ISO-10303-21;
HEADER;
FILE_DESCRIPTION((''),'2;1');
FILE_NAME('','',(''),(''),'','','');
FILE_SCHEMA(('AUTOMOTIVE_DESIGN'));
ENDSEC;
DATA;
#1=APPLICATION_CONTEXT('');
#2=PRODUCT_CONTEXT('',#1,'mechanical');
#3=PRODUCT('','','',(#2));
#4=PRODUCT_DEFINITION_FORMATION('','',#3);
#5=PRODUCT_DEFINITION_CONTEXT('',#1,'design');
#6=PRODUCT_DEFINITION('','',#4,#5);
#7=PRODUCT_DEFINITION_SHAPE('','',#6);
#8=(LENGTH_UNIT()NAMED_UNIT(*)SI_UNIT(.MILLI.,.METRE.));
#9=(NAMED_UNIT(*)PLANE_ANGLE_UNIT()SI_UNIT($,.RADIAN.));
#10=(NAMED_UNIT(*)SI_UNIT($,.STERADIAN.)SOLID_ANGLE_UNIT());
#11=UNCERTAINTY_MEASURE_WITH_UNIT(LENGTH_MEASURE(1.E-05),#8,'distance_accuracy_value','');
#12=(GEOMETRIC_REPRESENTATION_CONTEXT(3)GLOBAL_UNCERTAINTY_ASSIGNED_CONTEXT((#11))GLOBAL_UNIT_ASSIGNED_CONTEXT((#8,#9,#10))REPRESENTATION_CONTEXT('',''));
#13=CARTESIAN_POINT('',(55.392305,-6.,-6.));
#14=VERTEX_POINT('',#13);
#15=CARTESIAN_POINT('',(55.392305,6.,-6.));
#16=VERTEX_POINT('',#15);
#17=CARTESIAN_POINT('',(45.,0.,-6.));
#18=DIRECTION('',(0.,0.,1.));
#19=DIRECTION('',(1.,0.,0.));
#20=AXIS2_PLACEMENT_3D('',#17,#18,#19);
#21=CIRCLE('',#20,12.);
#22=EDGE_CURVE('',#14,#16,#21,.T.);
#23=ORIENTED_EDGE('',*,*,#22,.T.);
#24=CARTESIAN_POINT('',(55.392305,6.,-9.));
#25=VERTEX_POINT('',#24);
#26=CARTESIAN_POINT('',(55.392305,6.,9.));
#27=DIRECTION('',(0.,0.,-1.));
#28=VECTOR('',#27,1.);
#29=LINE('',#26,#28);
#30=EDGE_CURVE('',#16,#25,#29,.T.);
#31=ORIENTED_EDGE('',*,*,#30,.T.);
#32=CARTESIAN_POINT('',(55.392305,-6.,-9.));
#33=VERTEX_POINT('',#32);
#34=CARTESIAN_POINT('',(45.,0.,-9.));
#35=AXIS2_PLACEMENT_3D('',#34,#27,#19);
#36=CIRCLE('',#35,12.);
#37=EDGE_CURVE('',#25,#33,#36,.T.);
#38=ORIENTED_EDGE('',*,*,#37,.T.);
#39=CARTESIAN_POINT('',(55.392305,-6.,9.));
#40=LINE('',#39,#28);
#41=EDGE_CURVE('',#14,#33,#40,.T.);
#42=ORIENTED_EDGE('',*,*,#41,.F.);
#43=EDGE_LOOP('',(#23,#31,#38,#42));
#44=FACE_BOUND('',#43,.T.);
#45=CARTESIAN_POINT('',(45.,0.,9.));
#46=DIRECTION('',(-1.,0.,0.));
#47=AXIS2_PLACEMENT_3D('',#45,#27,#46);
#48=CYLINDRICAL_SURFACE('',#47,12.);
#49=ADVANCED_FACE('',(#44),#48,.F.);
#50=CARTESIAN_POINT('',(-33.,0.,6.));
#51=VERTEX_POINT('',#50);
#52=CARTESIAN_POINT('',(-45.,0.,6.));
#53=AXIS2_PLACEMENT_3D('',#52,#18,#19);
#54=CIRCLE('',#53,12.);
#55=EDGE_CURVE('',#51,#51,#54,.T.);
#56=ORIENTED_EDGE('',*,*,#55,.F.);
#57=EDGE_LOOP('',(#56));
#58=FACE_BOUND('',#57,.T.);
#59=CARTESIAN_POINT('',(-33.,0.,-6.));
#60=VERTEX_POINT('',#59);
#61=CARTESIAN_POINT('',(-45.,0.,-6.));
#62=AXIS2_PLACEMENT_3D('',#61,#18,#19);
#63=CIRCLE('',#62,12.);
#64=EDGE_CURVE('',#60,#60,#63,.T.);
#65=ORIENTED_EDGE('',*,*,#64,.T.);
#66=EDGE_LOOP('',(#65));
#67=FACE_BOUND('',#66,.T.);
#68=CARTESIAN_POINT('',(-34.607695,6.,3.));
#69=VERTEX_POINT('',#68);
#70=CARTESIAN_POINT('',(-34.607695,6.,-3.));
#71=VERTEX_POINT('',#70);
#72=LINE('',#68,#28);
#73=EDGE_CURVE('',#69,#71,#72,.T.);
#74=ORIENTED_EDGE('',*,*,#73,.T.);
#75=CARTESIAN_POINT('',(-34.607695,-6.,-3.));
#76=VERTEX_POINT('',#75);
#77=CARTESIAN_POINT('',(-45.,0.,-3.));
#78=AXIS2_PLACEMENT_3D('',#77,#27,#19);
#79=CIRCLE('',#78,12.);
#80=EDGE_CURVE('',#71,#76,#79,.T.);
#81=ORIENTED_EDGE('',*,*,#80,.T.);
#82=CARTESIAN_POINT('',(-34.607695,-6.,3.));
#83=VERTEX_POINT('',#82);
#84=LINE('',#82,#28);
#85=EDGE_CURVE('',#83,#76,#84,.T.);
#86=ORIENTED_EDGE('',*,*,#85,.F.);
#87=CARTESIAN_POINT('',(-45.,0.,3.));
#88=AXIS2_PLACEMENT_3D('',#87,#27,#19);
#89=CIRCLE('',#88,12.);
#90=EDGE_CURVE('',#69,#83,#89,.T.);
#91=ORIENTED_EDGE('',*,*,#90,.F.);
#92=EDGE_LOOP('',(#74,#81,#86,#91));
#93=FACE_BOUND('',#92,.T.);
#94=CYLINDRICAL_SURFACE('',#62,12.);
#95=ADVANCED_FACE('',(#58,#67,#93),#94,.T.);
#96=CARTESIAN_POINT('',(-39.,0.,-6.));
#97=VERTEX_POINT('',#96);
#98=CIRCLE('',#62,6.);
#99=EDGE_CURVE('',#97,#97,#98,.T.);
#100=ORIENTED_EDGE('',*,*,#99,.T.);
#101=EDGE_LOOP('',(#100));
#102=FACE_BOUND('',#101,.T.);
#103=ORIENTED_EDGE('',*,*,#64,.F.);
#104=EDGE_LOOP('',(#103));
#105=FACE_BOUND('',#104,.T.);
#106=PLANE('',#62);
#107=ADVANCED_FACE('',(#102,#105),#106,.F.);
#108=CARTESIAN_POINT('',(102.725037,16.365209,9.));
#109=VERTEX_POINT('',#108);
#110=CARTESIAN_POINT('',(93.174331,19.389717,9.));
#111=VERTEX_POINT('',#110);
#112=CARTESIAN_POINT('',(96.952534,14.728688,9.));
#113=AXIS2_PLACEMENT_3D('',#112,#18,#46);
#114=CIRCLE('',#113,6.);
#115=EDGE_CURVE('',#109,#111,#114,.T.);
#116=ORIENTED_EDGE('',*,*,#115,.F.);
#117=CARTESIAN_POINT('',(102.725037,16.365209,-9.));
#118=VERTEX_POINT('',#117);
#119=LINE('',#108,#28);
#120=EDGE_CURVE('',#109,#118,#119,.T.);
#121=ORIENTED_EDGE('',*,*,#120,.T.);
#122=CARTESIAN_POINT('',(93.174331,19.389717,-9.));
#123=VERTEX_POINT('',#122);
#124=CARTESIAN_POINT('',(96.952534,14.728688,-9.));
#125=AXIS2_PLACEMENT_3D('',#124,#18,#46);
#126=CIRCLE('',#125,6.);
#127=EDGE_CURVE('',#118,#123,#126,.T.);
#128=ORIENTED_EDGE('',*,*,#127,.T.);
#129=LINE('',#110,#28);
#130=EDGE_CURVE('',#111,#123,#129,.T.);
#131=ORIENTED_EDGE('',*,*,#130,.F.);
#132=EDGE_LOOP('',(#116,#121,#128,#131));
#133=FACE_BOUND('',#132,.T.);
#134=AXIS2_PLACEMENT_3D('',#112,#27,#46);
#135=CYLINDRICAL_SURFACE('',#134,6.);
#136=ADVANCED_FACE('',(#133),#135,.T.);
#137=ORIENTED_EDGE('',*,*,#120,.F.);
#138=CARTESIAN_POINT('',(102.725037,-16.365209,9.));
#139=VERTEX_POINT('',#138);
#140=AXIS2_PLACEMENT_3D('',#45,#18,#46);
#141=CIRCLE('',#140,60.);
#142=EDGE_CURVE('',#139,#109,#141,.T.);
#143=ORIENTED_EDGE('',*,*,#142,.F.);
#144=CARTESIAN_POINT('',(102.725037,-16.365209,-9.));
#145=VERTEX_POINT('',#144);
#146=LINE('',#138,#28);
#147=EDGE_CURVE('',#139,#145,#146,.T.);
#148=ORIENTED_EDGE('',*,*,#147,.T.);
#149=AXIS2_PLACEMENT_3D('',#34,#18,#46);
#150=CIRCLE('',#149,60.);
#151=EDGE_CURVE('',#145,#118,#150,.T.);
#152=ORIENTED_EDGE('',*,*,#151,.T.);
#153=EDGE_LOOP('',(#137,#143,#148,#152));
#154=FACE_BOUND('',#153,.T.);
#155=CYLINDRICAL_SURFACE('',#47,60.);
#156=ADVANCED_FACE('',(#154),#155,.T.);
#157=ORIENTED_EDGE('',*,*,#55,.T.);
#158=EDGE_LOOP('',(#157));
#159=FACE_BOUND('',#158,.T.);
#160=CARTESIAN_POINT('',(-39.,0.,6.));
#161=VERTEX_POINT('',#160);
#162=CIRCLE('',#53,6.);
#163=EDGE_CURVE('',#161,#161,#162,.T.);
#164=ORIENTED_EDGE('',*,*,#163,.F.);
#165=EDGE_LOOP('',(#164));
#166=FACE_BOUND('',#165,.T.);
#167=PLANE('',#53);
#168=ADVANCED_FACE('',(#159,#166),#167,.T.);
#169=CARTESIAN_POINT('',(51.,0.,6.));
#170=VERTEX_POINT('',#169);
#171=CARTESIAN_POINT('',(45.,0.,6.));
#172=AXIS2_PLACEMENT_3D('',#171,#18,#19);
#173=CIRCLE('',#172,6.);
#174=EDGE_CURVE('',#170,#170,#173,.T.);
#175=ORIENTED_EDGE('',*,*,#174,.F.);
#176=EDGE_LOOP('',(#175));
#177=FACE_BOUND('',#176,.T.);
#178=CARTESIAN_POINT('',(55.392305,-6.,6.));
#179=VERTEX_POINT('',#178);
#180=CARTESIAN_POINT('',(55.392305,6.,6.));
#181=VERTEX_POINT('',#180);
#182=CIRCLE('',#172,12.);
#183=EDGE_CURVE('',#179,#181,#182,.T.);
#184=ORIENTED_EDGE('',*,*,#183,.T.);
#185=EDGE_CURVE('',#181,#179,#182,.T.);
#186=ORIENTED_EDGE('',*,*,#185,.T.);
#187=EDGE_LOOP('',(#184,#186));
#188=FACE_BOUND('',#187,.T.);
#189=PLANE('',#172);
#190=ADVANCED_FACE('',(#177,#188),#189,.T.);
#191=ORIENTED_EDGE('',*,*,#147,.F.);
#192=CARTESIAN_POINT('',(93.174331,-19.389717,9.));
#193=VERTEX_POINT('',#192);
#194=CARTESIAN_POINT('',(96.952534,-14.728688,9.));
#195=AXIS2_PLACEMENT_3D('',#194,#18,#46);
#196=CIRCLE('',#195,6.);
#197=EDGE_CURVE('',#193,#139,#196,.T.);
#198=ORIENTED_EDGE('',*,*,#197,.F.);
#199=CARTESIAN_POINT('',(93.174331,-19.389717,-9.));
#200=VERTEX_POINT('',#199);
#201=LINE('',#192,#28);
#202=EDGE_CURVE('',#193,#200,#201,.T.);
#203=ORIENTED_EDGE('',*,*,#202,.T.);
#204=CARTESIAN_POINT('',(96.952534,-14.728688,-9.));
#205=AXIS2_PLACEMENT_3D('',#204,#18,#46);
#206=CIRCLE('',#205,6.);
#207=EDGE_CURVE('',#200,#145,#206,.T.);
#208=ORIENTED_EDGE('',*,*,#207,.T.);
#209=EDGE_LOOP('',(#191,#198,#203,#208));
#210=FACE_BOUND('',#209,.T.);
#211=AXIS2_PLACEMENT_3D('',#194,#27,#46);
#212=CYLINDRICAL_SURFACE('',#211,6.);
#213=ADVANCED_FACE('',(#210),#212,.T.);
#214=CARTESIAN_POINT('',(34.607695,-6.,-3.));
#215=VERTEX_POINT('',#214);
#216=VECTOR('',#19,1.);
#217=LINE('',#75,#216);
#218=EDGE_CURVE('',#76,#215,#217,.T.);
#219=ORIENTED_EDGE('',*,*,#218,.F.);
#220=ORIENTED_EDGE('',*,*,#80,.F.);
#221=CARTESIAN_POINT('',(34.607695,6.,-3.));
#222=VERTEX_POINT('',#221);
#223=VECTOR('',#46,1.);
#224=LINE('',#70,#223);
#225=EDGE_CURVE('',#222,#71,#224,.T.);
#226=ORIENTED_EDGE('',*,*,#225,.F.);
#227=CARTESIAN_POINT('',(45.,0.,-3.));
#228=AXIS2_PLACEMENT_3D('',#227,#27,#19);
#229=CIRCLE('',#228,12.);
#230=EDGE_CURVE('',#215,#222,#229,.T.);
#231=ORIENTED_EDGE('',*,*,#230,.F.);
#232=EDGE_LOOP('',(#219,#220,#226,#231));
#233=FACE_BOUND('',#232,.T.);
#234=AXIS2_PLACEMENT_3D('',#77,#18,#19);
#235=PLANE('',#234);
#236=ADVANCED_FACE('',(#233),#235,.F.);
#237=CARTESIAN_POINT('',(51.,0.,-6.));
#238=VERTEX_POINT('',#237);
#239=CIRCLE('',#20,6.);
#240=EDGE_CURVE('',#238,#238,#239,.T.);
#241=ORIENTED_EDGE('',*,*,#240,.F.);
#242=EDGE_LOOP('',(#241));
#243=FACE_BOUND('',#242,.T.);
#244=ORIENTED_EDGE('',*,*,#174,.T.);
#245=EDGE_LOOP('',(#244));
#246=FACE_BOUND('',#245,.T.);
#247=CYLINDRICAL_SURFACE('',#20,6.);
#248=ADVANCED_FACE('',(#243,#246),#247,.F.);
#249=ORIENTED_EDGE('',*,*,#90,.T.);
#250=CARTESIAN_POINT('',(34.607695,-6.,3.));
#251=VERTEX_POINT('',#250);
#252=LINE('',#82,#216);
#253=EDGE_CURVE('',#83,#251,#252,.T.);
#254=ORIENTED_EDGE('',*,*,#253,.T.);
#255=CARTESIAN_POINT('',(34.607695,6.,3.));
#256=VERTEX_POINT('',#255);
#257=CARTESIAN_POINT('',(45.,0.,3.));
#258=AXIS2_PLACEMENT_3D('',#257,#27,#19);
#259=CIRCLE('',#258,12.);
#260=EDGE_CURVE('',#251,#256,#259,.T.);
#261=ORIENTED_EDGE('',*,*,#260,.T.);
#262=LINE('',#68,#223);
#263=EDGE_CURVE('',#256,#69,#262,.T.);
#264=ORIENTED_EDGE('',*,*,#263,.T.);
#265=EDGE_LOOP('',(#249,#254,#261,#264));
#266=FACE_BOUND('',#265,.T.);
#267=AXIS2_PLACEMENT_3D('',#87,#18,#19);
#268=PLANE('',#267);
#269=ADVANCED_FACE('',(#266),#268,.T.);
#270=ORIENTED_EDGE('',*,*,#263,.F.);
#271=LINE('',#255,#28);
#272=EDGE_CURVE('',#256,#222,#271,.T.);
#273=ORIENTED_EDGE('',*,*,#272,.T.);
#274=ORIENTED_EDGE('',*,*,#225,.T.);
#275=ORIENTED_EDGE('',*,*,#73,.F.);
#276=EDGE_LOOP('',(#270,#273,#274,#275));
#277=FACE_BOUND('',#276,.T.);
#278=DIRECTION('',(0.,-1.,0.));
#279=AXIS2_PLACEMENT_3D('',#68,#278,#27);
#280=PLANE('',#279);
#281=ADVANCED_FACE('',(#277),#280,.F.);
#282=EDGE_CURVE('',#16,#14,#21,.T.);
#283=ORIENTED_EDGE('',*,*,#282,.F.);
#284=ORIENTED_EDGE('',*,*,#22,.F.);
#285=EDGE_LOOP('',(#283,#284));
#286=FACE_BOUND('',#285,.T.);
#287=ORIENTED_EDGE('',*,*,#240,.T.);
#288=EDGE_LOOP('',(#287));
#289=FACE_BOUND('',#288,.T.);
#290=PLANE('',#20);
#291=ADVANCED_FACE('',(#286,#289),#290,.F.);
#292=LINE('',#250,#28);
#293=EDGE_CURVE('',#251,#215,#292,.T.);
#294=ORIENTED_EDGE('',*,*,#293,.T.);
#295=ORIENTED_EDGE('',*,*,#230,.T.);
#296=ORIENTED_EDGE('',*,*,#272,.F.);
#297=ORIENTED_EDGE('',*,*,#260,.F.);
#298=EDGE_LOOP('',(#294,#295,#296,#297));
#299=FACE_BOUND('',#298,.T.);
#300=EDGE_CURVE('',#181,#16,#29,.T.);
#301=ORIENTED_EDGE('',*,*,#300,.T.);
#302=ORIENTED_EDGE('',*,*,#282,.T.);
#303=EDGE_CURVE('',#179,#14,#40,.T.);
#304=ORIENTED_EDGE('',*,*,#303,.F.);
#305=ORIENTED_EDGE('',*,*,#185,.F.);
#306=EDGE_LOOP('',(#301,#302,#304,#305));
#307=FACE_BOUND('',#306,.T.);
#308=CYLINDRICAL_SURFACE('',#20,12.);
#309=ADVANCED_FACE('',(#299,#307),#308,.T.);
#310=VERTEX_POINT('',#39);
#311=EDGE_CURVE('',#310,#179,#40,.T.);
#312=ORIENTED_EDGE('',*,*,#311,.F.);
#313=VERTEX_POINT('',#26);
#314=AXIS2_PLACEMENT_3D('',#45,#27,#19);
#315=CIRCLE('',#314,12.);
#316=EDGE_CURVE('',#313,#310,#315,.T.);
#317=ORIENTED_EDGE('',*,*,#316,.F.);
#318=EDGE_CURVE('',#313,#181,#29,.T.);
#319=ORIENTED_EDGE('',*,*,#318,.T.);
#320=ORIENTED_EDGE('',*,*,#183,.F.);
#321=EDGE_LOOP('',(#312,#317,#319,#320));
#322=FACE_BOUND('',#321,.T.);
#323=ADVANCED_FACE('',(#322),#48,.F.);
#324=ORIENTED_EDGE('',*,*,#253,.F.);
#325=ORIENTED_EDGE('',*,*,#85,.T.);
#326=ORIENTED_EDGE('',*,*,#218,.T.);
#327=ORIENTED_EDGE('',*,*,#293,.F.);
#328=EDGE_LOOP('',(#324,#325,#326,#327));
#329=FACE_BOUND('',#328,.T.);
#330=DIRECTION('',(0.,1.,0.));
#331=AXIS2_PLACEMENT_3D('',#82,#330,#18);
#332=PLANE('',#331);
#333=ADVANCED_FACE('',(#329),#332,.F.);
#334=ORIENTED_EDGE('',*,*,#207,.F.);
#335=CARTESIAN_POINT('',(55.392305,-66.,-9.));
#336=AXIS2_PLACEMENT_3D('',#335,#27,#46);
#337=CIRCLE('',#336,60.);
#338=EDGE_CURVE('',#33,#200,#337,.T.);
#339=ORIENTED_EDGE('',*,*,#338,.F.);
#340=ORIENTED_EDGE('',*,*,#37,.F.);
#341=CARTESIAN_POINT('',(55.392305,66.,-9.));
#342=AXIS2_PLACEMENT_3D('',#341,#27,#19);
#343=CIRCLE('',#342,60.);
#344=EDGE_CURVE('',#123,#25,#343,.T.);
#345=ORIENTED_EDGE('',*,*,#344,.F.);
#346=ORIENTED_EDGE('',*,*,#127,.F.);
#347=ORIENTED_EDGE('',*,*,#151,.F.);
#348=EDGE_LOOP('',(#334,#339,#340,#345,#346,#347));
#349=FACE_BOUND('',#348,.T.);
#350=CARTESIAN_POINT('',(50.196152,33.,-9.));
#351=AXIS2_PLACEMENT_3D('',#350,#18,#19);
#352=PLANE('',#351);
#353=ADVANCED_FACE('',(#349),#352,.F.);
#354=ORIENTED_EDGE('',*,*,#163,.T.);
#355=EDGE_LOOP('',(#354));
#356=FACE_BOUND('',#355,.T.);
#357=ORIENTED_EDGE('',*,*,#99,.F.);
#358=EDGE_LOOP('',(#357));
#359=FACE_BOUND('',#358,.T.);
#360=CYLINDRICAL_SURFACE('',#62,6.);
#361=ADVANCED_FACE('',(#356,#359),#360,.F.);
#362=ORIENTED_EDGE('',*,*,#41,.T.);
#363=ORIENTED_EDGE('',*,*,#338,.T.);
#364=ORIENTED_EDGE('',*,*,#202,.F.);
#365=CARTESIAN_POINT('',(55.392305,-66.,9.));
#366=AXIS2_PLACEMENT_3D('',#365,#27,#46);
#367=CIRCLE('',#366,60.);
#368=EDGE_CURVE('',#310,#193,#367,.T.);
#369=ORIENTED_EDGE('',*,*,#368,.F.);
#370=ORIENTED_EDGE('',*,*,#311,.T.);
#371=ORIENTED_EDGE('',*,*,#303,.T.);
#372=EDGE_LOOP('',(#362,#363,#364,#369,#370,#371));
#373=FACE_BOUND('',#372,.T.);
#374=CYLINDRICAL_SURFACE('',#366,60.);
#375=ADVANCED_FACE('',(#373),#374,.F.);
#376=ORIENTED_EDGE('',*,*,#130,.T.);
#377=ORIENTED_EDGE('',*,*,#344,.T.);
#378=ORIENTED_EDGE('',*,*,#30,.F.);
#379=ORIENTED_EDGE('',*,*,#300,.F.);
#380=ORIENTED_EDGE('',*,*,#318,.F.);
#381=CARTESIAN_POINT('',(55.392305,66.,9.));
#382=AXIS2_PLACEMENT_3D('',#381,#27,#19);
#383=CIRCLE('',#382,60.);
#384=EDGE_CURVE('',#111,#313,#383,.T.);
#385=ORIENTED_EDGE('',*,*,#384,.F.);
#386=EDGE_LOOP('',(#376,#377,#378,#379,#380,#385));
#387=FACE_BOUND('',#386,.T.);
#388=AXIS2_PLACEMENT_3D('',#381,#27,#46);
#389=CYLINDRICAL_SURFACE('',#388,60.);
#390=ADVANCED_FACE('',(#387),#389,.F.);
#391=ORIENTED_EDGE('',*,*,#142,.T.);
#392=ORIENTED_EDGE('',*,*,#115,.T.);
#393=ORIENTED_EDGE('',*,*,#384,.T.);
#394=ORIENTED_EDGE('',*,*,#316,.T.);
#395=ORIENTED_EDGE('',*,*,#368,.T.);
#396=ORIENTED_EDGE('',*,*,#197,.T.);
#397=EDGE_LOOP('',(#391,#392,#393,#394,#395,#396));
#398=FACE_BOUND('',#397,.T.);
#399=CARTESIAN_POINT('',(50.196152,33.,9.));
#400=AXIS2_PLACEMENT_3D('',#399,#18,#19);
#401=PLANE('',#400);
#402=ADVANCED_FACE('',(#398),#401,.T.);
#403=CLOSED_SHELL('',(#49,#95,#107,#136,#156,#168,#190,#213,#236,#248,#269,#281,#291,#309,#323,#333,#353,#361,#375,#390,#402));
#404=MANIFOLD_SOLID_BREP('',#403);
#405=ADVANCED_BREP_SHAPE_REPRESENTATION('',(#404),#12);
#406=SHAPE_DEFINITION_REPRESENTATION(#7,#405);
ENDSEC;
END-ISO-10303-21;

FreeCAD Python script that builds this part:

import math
import FreeCAD as App
import Part
import Sketcher

doc = App.newDocument("Part")
body = doc.addObject("PartDesign::Body", "Body")

sketch1 = body.newObject("Sketcher::SketchObject", "Sketch")
sketch1.AttachmentSupport = (doc.getObject("XY_Plane"), [""])
sketch1.MapMode = "FlatFace"
sketch1.addGeometry([
    Part.Circle(App.Vector(-45, 0, 0), App.Vector(0, 0, 1), 12),
    Part.Circle(App.Vector(-45, 0, 0), App.Vector(0, 0, 1), 6),
], False)
sketch1.addConstraint([
    Sketcher.Constraint("Coincident", 1, 3, 0, 3),
    Sketcher.Constraint("PointOnObject", 0, 3, -1),
    Sketcher.Constraint("Diameter", 0, 24.0),
    Sketcher.Constraint("Diameter", 1, 12.0),
    Sketcher.Constraint("DistanceX", 0, 3, -1, 1, 45.0),
])
pad1 = body.newObject("PartDesign::Pad", "Pad")
pad1.Profile = sketch1
pad1.Length = 12
pad1.Midplane = True
body2 = doc.addObject("PartDesign::Body", "Body001")

sketch2 = body2.newObject("Sketcher::SketchObject", "Sketch001")
sketch2.AttachmentSupport = (doc.getObject("XY_Plane001"), [""])
sketch2.MapMode = "FlatFace"
sketch2.addGeometry([
    Part.Circle(App.Vector(45, 0, 0), App.Vector(0, 0, 1), 12),
    Part.Circle(App.Vector(45, 0, 0), App.Vector(0, 0, 1), 6),
], False)
sketch2.addConstraint([
    Sketcher.Constraint("Coincident", 1, 3, 0, 3),
    Sketcher.Constraint("PointOnObject", 0, 3, -1),
    Sketcher.Constraint("Diameter", 0, 24.0),
    Sketcher.Constraint("Diameter", 1, 12.0),
    Sketcher.Constraint("DistanceX", -1, 1, 0, 3, 45.0),
])
pad2 = body2.newObject("PartDesign::Pad", "Pad001")
pad2.Profile = sketch2
pad2.Length = 12
pad2.Midplane = True
body.AllowCompound = True
doc.recompute()

boolean = body.newObject("PartDesign::Boolean", "Boolean")
boolean.Type = "Fuse"
boolean.addObjects([body2])

sketch3 = body.newObject("Sketcher::SketchObject", "Sketch002")
sketch3.AttachmentSupport = (doc.getObject("XY_Plane"), [""])
sketch3.MapMode = "FlatFace"
sketch3.addGeometry([
    Part.LineSegment(App.Vector(34.607695, 6, 0), App.Vector(-34.607695, 6, 0)),
    Part.ArcOfCircle(Part.Circle(App.Vector(-45, 0, 0), App.Vector(0, 0, 1), 12), math.radians(-30), math.radians(30)),
    Part.LineSegment(App.Vector(-34.607695, -6, 0), App.Vector(34.607695, -6, 0)),
    Part.ArcOfCircle(Part.Circle(App.Vector(45, 0, 0), App.Vector(0, 0, 1), 12), math.radians(150), math.radians(210)),
], False)
sketch3.addConstraint([
    Sketcher.Constraint("Coincident", 0, 2, 1, 2),
    Sketcher.Constraint("Coincident", 1, 1, 2, 1),
    Sketcher.Constraint("Coincident", 2, 2, 3, 2),
    Sketcher.Constraint("Coincident", 3, 1, 0, 1),
    Sketcher.Constraint("Horizontal", 0),
    Sketcher.Constraint("Horizontal", 2),
    Sketcher.Constraint("Equal", 1, 3),
    Sketcher.Constraint("Symmetric", 1, 3, 3, 3, -1, 1),
    Sketcher.Constraint("Symmetric", 0, 2, 1, 1, -1),
    Sketcher.Constraint("Radius", 1, 12.0),
    Sketcher.Constraint("DistanceX", 1, 3, -1, 1, 45.0),
    Sketcher.Constraint("DistanceY", -1, 1, 0, 2, 6.0),
])
pad3 = body.newObject("PartDesign::Pad", "Pad002")
pad3.Profile = sketch3
pad3.Length = 6
pad3.Midplane = True

sketch4 = body.newObject("Sketcher::SketchObject", "Sketch003")
sketch4.AttachmentSupport = (doc.getObject("XY_Plane"), [""])
sketch4.MapMode = "FlatFace"
sketch4.addGeometry([
    Part.ArcOfCircle(Part.Circle(App.Vector(55.392305, 66, 0), App.Vector(0, 0, 1), 60), math.radians(-90), math.radians(-50.971975)),
    Part.ArcOfCircle(Part.Circle(App.Vector(45, 0, 0), App.Vector(0, 0, 1), 12), math.radians(-30), math.radians(30)),
    Part.ArcOfCircle(Part.Circle(App.Vector(55.392305, -66, 0), App.Vector(0, 0, 1), 60), math.radians(50.971975), math.radians(90)),
    Part.ArcOfCircle(Part.Circle(App.Vector(96.952534, -14.728688, 0), App.Vector(0, 0, 1), 6), math.radians(-129.028025), math.radians(-15.828181)),
    Part.ArcOfCircle(Part.Circle(App.Vector(45, 0, 0), App.Vector(0, 0, 1), 60), math.radians(-15.828181), math.radians(15.828181)),
    Part.ArcOfCircle(Part.Circle(App.Vector(96.952534, 14.728688, 0), App.Vector(0, 0, 1), 6), math.radians(15.828181), math.radians(129.028025)),
], False)
sketch4.addConstraint([
    Sketcher.Constraint("Coincident", 0, 1, 1, 2),
    Sketcher.Constraint("Coincident", 1, 1, 2, 2),
    Sketcher.Constraint("Tangent", 2, 1, 3, 1),
    Sketcher.Constraint("Tangent", 3, 2, 4, 1),
    Sketcher.Constraint("Tangent", 4, 2, 5, 1),
    Sketcher.Constraint("Tangent", 5, 2, 0, 2),
    Sketcher.Constraint("Coincident", 4, 3, 1, 3),
    Sketcher.Constraint("Equal", 0, 2),
    Sketcher.Constraint("Equal", 2, 4),
    Sketcher.Constraint("Equal", 3, 5),
    Sketcher.Constraint("Symmetric", 0, 3, 2, 3, -1),
    Sketcher.Constraint("PointOnObject", 1, 3, -1),
    Sketcher.Constraint("Vertical", 2, 3, 0, 1),
    Sketcher.Constraint("Radius", 0, 60.0),
    Sketcher.Constraint("Radius", 1, 12.0),
    Sketcher.Constraint("Radius", 3, 6.0),
    Sketcher.Constraint("DistanceY", -1, 1, 0, 3, 66.0),
    Sketcher.Constraint("DistanceX", -1, 1, 1, 3, 45.0),
])
pad4 = body.newObject("PartDesign::Pad", "Pad003")
pad4.Profile = sketch4
pad4.Length = 18
pad4.Midplane = True

doc.recompute()
